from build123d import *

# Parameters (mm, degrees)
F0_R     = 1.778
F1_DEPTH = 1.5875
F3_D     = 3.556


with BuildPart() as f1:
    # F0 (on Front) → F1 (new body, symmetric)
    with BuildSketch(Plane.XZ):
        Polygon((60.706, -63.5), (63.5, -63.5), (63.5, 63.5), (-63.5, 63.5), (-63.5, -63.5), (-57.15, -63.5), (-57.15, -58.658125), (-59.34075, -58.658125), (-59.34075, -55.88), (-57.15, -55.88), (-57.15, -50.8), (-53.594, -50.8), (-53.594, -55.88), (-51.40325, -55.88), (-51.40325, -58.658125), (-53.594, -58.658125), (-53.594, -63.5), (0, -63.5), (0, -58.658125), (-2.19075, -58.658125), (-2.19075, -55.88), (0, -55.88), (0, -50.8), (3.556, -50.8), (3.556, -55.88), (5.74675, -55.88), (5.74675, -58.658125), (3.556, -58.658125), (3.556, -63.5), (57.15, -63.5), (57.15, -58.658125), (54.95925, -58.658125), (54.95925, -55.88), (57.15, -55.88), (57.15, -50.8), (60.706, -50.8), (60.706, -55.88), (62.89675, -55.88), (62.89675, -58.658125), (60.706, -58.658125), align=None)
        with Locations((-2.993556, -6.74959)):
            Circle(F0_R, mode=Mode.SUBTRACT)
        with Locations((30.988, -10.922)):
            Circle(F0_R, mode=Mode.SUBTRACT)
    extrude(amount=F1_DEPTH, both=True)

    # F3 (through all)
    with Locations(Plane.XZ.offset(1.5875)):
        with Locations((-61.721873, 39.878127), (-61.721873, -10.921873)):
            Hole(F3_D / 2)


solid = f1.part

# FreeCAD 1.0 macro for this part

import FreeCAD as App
import Part
import Sketcher

V = App.Vector
Q = App.Units.Quantity

doc = App.newDocument("Part")
body = doc.addObject("PartDesign::Body", "Body")

# Sketch on XZ plane
sketch1 = body.newObject("Sketcher::SketchObject", "Sketch")
sketch1.AttachmentSupport = (doc.getObject("XZ_Plane"), [""])
sketch1.MapMode = "FlatFace"
sketch1.addGeometry(Part.LineSegment(V(60.7, -63.5, 0), V(63.5, -63.5, 0)), False)
sketch1.addGeometry(Part.LineSegment(V(63.5, -63.5, 0), V(63.5, 63.5, 0)), False)
sketch1.addGeometry(Part.LineSegment(V(63.5, 63.5, 0), V(-63.5, 63.5, 0)), False)
sketch1.addGeometry(Part.LineSegment(V(-63.5, 63.5, 0), V(-63.5, -63.5, 0)), False)
sketch1.addGeometry(Part.LineSegment(V(-63.5, -63.5, 0), V(-57.1, -63.5, 0)), False)
sketch1.addGeometry(Part.LineSegment(V(-57.1, -63.5, 0), V(-57.1, -58.7, 0)), False)
sketch1.addGeometry(Part.LineSegment(V(-57.1, -58.7, 0), V(-59.3, -58.7, 0)), False)
sketch1.addGeometry(Part.LineSegment(V(-59.3, -58.7, 0), V(-59.3, -55.9, 0)), False)
sketch1.addGeometry(Part.LineSegment(V(-59.3, -55.9, 0), V(-57.1, -55.9, 0)), False)
sketch1.addGeometry(Part.LineSegment(V(-57.1, -55.9, 0), V(-57.1, -50.8, 0)), False)
sketch1.addGeometry(Part.LineSegment(V(-57.1, -50.8, 0), V(-53.6, -50.8, 0)), False)
sketch1.addGeometry(Part.LineSegment(V(-53.6, -50.8, 0), V(-53.6, -55.9, 0)), False)
sketch1.addGeometry(Part.LineSegment(V(-53.6, -55.9, 0), V(-51.4, -55.9, 0)), False)
sketch1.addGeometry(Part.LineSegment(V(-51.4, -55.9, 0), V(-51.4, -58.7, 0)), False)
sketch1.addGeometry(Part.LineSegment(V(-51.4, -58.7, 0), V(-53.6, -58.7, 0)), False)
sketch1.addGeometry(Part.LineSegment(V(-53.6, -58.7, 0), V(-53.6, -63.5, 0)), False)
sketch1.addGeometry(Part.LineSegment(V(-53.6, -63.5, 0), V(0, -63.5, 0)), False)
sketch1.addGeometry(Part.LineSegment(V(0, -63.5, 0), V(0, -58.7, 0)), False)
sketch1.addGeometry(Part.LineSegment(V(0, -58.7, 0), V(-2.2, -58.7, 0)), False)
sketch1.addGeometry(Part.LineSegment(V(-2.2, -58.7, 0), V(-2.2, -55.9, 0)), False)
sketch1.addGeometry(Part.LineSegment(V(-2.2, -55.9, 0), V(0, -55.9, 0)), False)
sketch1.addGeometry(Part.LineSegment(V(0, -55.9, 0), V(0, -50.8, 0)), False)
sketch1.addGeometry(Part.LineSegment(V(0, -50.8, 0), V(3.6, -50.8, 0)), False)
sketch1.addGeometry(Part.LineSegment(V(3.6, -50.8, 0), V(3.6, -55.9, 0)), False)
sketch1.addGeometry(Part.LineSegment(V(3.6, -55.9, 0), V(5.7, -55.9, 0)), False)
sketch1.addGeometry(Part.LineSegment(V(5.7, -55.9, 0), V(5.7, -58.7, 0)), False)
sketch1.addGeometry(Part.LineSegment(V(5.7, -58.7, 0), V(3.6, -58.7, 0)), False)
sketch1.addGeometry(Part.LineSegment(V(3.6, -58.7, 0), V(3.6, -63.5, 0)), False)
sketch1.addGeometry(Part.LineSegment(V(3.6, -63.5, 0), V(57.1, -63.5, 0)), False)
sketch1.addGeometry(Part.LineSegment(V(57.1, -63.5, 0), V(57.1, -58.7, 0)), False)
sketch1.addGeometry(Part.LineSegment(V(57.1, -58.7, 0), V(55, -58.7, 0)), False)
sketch1.addGeometry(Part.LineSegment(V(55, -58.7, 0), V(55, -55.9, 0)), False)
sketch1.addGeometry(Part.LineSegment(V(55, -55.9, 0), V(57.1, -55.9, 0)), False)
sketch1.addGeometry(Part.LineSegment(V(57.1, -55.9, 0), V(57.1, -50.8, 0)), False)
sketch1.addGeometry(Part.LineSegment(V(57.1, -50.8, 0), V(60.7, -50.8, 0)), False)
sketch1.addGeometry(Part.LineSegment(V(60.7, -50.8, 0), V(60.7, -55.9, 0)), False)
sketch1.addGeometry(Part.LineSegment(V(60.7, -55.9, 0), V(62.9, -55.9, 0)), False)
sketch1.addGeometry(Part.LineSegment(V(62.9, -55.9, 0), V(62.9, -58.7, 0)), False)
sketch1.addGeometry(Part.LineSegment(V(62.9, -58.7, 0), V(60.7, -58.7, 0)), False)
sketch1.addGeometry(Part.LineSegment(V(60.7, -58.7, 0), V(60.7, -63.5, 0)), False)
sketch1.addGeometry(Part.Circle(V(31, -10.9, 0), V(0, 0, 1), 1.8), False)
sketch1.addGeometry(Part.Circle(V(-3, -6.7, 0), V(0, 0, 1), 1.8), False)
sketch1.addConstraint(Sketcher.Constraint("Coincident", 0, 2, 1, 1))
sketch1.addConstraint(Sketcher.Constraint("Coincident", 1, 2, 2, 1))
sketch1.addConstraint(Sketcher.Constraint("Coincident", 2, 2, 3, 1))
sketch1.addConstraint(Sketcher.Constraint("Coincident", 3, 2, 4, 1))
sketch1.addConstraint(Sketcher.Constraint("Coincident", 4, 2, 5, 1))
sketch1.addConstraint(Sketcher.Constraint("Coincident", 5, 2, 6, 1))
sketch1.addConstraint(Sketcher.Constraint("Coincident", 6, 2, 7, 1))
sketch1.addConstraint(Sketcher.Constraint("Coincident", 7, 2, 8, 1))
sketch1.addConstraint(Sketcher.Constraint("Coincident", 8, 2, 9, 1))
sketch1.addConstraint(Sketcher.Constraint("Coincident", 9, 2, 10, 1))
sketch1.addConstraint(Sketcher.Constraint("Coincident", 10, 2, 11, 1))
sketch1.addConstraint(Sketcher.Constraint("Coincident", 11, 2, 12, 1))
sketch1.addConstraint(Sketcher.Constraint("Coincident", 12, 2, 13, 1))
sketch1.addConstraint(Sketcher.Constraint("Coincident", 13, 2, 14, 1))
sketch1.addConstraint(Sketcher.Constraint("Coincident", 14, 2, 15, 1))
sketch1.addConstraint(Sketcher.Constraint("Coincident", 15, 2, 16, 1))
sketch1.addConstraint(Sketcher.Constraint("Coincident", 16, 2, 17, 1))
sketch1.addConstraint(Sketcher.Constraint("Coincident", 17, 2, 18, 1))
sketch1.addConstraint(Sketcher.Constraint("Coincident", 18, 2, 19, 1))
sketch1.addConstraint(Sketcher.Constraint("Coincident", 19, 2, 20, 1))
sketch1.addConstraint(Sketcher.Constraint("Coincident", 20, 2, 21, 1))
sketch1.addConstraint(Sketcher.Constraint("Coincident", 21, 2, 22, 1))
sketch1.addConstraint(Sketcher.Constraint("Coincident", 22, 2, 23, 1))
sketch1.addConstraint(Sketcher.Constraint("Coincident", 23, 2, 24, 1))
sketch1.addConstraint(Sketcher.Constraint("Coincident", 24, 2, 25, 1))
sketch1.addConstraint(Sketcher.Constraint("Coincident", 25, 2, 26, 1))
sketch1.addConstraint(Sketcher.Constraint("Coincident", 26, 2, 27, 1))
sketch1.addConstraint(Sketcher.Constraint("Coincident", 27, 2, 28, 1))
sketch1.addConstraint(Sketcher.Constraint("Coincident", 28, 2, 29, 1))
sketch1.addConstraint(Sketcher.Constraint("Coincident", 29, 2, 30, 1))
sketch1.addConstraint(Sketcher.Constraint("Coincident", 30, 2, 31, 1))
sketch1.addConstraint(Sketcher.Constraint("Coincident", 31, 2, 32, 1))
sketch1.addConstraint(Sketcher.Constraint("Coincident", 32, 2, 33, 1))
sketch1.addConstraint(Sketcher.Constraint("Coincident", 33, 2, 34, 1))
sketch1.addConstraint(Sketcher.Constraint("Coincident", 34, 2, 35, 1))
sketch1.addConstraint(Sketcher.Constraint("Coincident", 35, 2, 36, 1))
sketch1.addConstraint(Sketcher.Constraint("Coincident", 36, 2, 37, 1))
sketch1.addConstraint(Sketcher.Constraint("Coincident", 37, 2, 38, 1))
sketch1.addConstraint(Sketcher.Constraint("Coincident", 38, 2, 39, 1))
sketch1.addConstraint(Sketcher.Constraint("Coincident", 39, 2, 0, 1))
sketch1.addConstraint(Sketcher.Constraint("Horizontal", 0))
sketch1.addConstraint(Sketcher.Constraint("Vertical", 1))
sketch1.addConstraint(Sketcher.Constraint("Horizontal", 2))
sketch1.addConstraint(Sketcher.Constraint("Vertical", 3))
sketch1.addConstraint(Sketcher.Constraint("Horizontal", 4))
sketch1.addConstraint(Sketcher.Constraint("Vertical", 5))
sketch1.addConstraint(Sketcher.Constraint("Horizontal", 6))
sketch1.addConstraint(Sketcher.Constraint("Vertical", 7))
sketch1.addConstraint(Sketcher.Constraint("Horizontal", 8))
sketch1.addConstraint(Sketcher.Constraint("Vertical", 9))
sketch1.addConstraint(Sketcher.Constraint("Horizontal", 10))
sketch1.addConstraint(Sketcher.Constraint("Vertical", 11))
sketch1.addConstraint(Sketcher.Constraint("Horizontal", 12))
sketch1.addConstraint(Sketcher.Constraint("Vertical", 13))
sketch1.addConstraint(Sketcher.Constraint("Horizontal", 14))
sketch1.addConstraint(Sketcher.Constraint("Vertical", 15))
sketch1.addConstraint(Sketcher.Constraint("Horizontal", 16))
sketch1.addConstraint(Sketcher.Constraint("Vertical", 17))
sketch1.addConstraint(Sketcher.Constraint("Horizontal", 18))
sketch1.addConstraint(Sketcher.Constraint("Vertical", 19))
sketch1.addConstraint(Sketcher.Constraint("Horizontal", 20))
sketch1.addConstraint(Sketcher.Constraint("Vertical", 21))
sketch1.addConstraint(Sketcher.Constraint("Horizontal", 22))
sketch1.addConstraint(Sketcher.Constraint("Vertical", 23))
sketch1.addConstraint(Sketcher.Constraint("Horizontal", 24))
sketch1.addConstraint(Sketcher.Constraint("Vertical", 25))
sketch1.addConstraint(Sketcher.Constraint("Horizontal", 26))
sketch1.addConstraint(Sketcher.Constraint("Vertical", 27))
sketch1.addConstraint(Sketcher.Constraint("Horizontal", 28))
sketch1.addConstraint(Sketcher.Constraint("Vertical", 29))
sketch1.addConstraint(Sketcher.Constraint("Horizontal", 30))
sketch1.addConstraint(Sketcher.Constraint("Vertical", 31))
sketch1.addConstraint(Sketcher.Constraint("Horizontal", 32))
sketch1.addConstraint(Sketcher.Constraint("Vertical", 33))
sketch1.addConstraint(Sketcher.Constraint("Horizontal", 34))
sketch1.addConstraint(Sketcher.Constraint("Vertical", 35))
sketch1.addConstraint(Sketcher.Constraint("Horizontal", 36))
sketch1.addConstraint(Sketcher.Constraint("Vertical", 37))
sketch1.addConstraint(Sketcher.Constraint("Horizontal", 38))
sketch1.addConstraint(Sketcher.Constraint("Vertical", 39))
sketch1.addConstraint(Sketcher.Constraint("Equal", 40, 41))
sketch1.addConstraint(Sketcher.Constraint("Symmetric", 0, 2, 2, 2, -1, 1))
sketch1.addConstraint(Sketcher.Constraint("Symmetric", 4, 2, 28, 2, -2))
sketch1.addConstraint(Sketcher.Constraint("Symmetric", 8, 2, 32, 2, -2))
sketch1.addConstraint(Sketcher.Constraint("PointOnObject", 16, 2, -2))
sketch1.addConstraint(Sketcher.Constraint("PointOnObject", 20, 2, -2))
sketch1.addConstraint(Sketcher.Constraint("Horizontal", 0, 2, 3, 2))
sketch1.addConstraint(Sketcher.Constraint("Horizontal", 8, 2, 11, 2))
sketch1.addConstraint(Sketcher.Constraint("Horizontal", 6, 2, 13, 2))
sketch1.addConstraint(Sketcher.Constraint("Horizontal", 4, 2, 15, 2))
sketch1.addConstraint(Sketcher.Constraint("Horizontal", 14, 2, 17, 2))
sketch1.addConstraint(Sketcher.Constraint("Horizontal", 12, 2, 19, 2))
sketch1.addConstraint(Sketcher.Constraint("Horizontal", 10, 2, 21, 2))
sketch1.addConstraint(Sketcher.Constraint("Horizontal", 20, 2, 23, 2))
sketch1.addConstraint(Sketcher.Constraint("Horizontal", 18, 2, 25, 2))
sketch1.addConstraint(Sketcher.Constraint("Horizontal", 26, 2, 29, 2))
sketch1.addConstraint(Sketcher.Constraint("Horizontal", 22, 2, 33, 2))
sketch1.addConstraint(Sketcher.Constraint("Horizontal", 32, 2, 35, 2))
sketch1.addConstraint(Sketcher.Constraint("Horizontal", 30, 2, 37, 2))
sketch1.addConstraint(Sketcher.Constraint("Vertical", 5, 2, 8, 2))
sketch1.addConstraint(Sketcher.Constraint("Vertical", 11, 2, 14, 2))
sketch1.addConstraint(Sketcher.Constraint("Vertical", 23, 2, 26, 2))
sketch1.addConstraint(Sketcher.Constraint("Vertical", 35, 2, 38, 2))
sketch1.addConstraint(Sketcher.Constraint("Equal", 8, 12))
sketch1.addConstraint(Sketcher.Constraint("Equal", 14, 18))
sketch1.addConstraint(Sketcher.Constraint("Equal", 10, 22))
sketch1.addConstraint(Sketcher.Constraint("Equal", 20, 24))
sketch1.addConstraint(Sketcher.Constraint("Equal", 26, 30))
sketch1.addConstraint(Sketcher.Constraint("Equal", 22, 34))
sketch1.addConstraint(Sketcher.Constraint("Equal", 32, 36))
sketch1.addConstraint(Sketcher.Constraint("Equal", 2, 1))
sketch1.addConstraint(Sketcher.Constraint("Diameter", 40, Q("0.14 in")))
sketch1.addConstraint(Sketcher.Constraint("DistanceX", 2, 2, 2, 1, Q("5 in")))
sketch1.addConstraint(Sketcher.Constraint("DistanceY", 9, 1, 9, 2, Q("0.2 in")))
sketch1.addConstraint(Sketcher.Constraint("DistanceY", 9, 2, -1, 1, Q("2 in")))
sketch1.addConstraint(Sketcher.Constraint("DistanceX", 0, 1, 0, 2, Q("0.11 in")))
sketch1.addConstraint(Sketcher.Constraint("DistanceX", 4, 1, 4, 2, Q("0.25 in")))
sketch1.addConstraint(Sketcher.Constraint("DistanceY", 7, 1, 7, 2, Q("0.109375 in")))
sketch1.addConstraint(Sketcher.Constraint("DistanceX", -1, 1, 40, 3, Q("1.22 in")))
sketch1.addConstraint(Sketcher.Constraint("DistanceY", 40, 3, -1, 1, Q("0.43 in")))
sketch1.addConstraint(Sketcher.Constraint("DistanceX", 13, 2, 18, 2, Q("1.9375 in")))
sketch1.addConstraint(Sketcher.Constraint("DistanceY", 41, 3, -1, 1, Q("6.74959 mm")))
sketch1.addConstraint(Sketcher.Constraint("DistanceX", 41, 3, -1, 1, Q("2.993556 mm")))
pad1 = body.newObject("PartDesign::Pad", "Pad")
pad1.Profile = sketch1
pad1.Length = Q("0.125 in")
pad1.Midplane = True

# Sketch on XZ plane
sketch2 = body.newObject("Sketcher::SketchObject", "Sketch001")
sketch2.AttachmentSupport = (doc.getObject("XZ_Plane"), [""])
sketch2.MapMode = "FlatFace"
sketch2.AttachmentOffset = App.Placement(V(0, 0, 0.0625 * 25.4), App.Rotation())
sketch2.addGeometry(Part.Circle(V(-61.7, 39.9, 0), V(0, 0, 1), 1.8), False)
sketch2.addGeometry(Part.Circle(V(-61.7, -10.9, 0), V(0, 0, 1), 1.8), False)
sketch2.addConstraint(Sketcher.Constraint("Equal", 0, 1))
sketch2.addConstraint(Sketcher.Constraint("Vertical", 0, 3, 1, 3))
sketch2.addConstraint(Sketcher.Constraint("Diameter", 0, Q("0.14 in")))
sketch2.addConstraint(Sketcher.Constraint("DistanceY", 1, 3, 0, 3, Q("2 in")))
sketch2.addConstraint(Sketcher.Constraint("DistanceX", 0, 3, -1, 1, Q("61.721873 mm")))
sketch2.addConstraint(Sketcher.Constraint("DistanceY", -1, 1, 0, 3, Q("39.878127 mm")))
doc.recompute()
hole = body.newObject("PartDesign::Hole", "Hole")
hole.Profile = sketch2
hole.ThreadType = "None"
hole.Diameter = Q("0.14 in")
hole.DepthType = "ThroughAll"

doc.recompute()
